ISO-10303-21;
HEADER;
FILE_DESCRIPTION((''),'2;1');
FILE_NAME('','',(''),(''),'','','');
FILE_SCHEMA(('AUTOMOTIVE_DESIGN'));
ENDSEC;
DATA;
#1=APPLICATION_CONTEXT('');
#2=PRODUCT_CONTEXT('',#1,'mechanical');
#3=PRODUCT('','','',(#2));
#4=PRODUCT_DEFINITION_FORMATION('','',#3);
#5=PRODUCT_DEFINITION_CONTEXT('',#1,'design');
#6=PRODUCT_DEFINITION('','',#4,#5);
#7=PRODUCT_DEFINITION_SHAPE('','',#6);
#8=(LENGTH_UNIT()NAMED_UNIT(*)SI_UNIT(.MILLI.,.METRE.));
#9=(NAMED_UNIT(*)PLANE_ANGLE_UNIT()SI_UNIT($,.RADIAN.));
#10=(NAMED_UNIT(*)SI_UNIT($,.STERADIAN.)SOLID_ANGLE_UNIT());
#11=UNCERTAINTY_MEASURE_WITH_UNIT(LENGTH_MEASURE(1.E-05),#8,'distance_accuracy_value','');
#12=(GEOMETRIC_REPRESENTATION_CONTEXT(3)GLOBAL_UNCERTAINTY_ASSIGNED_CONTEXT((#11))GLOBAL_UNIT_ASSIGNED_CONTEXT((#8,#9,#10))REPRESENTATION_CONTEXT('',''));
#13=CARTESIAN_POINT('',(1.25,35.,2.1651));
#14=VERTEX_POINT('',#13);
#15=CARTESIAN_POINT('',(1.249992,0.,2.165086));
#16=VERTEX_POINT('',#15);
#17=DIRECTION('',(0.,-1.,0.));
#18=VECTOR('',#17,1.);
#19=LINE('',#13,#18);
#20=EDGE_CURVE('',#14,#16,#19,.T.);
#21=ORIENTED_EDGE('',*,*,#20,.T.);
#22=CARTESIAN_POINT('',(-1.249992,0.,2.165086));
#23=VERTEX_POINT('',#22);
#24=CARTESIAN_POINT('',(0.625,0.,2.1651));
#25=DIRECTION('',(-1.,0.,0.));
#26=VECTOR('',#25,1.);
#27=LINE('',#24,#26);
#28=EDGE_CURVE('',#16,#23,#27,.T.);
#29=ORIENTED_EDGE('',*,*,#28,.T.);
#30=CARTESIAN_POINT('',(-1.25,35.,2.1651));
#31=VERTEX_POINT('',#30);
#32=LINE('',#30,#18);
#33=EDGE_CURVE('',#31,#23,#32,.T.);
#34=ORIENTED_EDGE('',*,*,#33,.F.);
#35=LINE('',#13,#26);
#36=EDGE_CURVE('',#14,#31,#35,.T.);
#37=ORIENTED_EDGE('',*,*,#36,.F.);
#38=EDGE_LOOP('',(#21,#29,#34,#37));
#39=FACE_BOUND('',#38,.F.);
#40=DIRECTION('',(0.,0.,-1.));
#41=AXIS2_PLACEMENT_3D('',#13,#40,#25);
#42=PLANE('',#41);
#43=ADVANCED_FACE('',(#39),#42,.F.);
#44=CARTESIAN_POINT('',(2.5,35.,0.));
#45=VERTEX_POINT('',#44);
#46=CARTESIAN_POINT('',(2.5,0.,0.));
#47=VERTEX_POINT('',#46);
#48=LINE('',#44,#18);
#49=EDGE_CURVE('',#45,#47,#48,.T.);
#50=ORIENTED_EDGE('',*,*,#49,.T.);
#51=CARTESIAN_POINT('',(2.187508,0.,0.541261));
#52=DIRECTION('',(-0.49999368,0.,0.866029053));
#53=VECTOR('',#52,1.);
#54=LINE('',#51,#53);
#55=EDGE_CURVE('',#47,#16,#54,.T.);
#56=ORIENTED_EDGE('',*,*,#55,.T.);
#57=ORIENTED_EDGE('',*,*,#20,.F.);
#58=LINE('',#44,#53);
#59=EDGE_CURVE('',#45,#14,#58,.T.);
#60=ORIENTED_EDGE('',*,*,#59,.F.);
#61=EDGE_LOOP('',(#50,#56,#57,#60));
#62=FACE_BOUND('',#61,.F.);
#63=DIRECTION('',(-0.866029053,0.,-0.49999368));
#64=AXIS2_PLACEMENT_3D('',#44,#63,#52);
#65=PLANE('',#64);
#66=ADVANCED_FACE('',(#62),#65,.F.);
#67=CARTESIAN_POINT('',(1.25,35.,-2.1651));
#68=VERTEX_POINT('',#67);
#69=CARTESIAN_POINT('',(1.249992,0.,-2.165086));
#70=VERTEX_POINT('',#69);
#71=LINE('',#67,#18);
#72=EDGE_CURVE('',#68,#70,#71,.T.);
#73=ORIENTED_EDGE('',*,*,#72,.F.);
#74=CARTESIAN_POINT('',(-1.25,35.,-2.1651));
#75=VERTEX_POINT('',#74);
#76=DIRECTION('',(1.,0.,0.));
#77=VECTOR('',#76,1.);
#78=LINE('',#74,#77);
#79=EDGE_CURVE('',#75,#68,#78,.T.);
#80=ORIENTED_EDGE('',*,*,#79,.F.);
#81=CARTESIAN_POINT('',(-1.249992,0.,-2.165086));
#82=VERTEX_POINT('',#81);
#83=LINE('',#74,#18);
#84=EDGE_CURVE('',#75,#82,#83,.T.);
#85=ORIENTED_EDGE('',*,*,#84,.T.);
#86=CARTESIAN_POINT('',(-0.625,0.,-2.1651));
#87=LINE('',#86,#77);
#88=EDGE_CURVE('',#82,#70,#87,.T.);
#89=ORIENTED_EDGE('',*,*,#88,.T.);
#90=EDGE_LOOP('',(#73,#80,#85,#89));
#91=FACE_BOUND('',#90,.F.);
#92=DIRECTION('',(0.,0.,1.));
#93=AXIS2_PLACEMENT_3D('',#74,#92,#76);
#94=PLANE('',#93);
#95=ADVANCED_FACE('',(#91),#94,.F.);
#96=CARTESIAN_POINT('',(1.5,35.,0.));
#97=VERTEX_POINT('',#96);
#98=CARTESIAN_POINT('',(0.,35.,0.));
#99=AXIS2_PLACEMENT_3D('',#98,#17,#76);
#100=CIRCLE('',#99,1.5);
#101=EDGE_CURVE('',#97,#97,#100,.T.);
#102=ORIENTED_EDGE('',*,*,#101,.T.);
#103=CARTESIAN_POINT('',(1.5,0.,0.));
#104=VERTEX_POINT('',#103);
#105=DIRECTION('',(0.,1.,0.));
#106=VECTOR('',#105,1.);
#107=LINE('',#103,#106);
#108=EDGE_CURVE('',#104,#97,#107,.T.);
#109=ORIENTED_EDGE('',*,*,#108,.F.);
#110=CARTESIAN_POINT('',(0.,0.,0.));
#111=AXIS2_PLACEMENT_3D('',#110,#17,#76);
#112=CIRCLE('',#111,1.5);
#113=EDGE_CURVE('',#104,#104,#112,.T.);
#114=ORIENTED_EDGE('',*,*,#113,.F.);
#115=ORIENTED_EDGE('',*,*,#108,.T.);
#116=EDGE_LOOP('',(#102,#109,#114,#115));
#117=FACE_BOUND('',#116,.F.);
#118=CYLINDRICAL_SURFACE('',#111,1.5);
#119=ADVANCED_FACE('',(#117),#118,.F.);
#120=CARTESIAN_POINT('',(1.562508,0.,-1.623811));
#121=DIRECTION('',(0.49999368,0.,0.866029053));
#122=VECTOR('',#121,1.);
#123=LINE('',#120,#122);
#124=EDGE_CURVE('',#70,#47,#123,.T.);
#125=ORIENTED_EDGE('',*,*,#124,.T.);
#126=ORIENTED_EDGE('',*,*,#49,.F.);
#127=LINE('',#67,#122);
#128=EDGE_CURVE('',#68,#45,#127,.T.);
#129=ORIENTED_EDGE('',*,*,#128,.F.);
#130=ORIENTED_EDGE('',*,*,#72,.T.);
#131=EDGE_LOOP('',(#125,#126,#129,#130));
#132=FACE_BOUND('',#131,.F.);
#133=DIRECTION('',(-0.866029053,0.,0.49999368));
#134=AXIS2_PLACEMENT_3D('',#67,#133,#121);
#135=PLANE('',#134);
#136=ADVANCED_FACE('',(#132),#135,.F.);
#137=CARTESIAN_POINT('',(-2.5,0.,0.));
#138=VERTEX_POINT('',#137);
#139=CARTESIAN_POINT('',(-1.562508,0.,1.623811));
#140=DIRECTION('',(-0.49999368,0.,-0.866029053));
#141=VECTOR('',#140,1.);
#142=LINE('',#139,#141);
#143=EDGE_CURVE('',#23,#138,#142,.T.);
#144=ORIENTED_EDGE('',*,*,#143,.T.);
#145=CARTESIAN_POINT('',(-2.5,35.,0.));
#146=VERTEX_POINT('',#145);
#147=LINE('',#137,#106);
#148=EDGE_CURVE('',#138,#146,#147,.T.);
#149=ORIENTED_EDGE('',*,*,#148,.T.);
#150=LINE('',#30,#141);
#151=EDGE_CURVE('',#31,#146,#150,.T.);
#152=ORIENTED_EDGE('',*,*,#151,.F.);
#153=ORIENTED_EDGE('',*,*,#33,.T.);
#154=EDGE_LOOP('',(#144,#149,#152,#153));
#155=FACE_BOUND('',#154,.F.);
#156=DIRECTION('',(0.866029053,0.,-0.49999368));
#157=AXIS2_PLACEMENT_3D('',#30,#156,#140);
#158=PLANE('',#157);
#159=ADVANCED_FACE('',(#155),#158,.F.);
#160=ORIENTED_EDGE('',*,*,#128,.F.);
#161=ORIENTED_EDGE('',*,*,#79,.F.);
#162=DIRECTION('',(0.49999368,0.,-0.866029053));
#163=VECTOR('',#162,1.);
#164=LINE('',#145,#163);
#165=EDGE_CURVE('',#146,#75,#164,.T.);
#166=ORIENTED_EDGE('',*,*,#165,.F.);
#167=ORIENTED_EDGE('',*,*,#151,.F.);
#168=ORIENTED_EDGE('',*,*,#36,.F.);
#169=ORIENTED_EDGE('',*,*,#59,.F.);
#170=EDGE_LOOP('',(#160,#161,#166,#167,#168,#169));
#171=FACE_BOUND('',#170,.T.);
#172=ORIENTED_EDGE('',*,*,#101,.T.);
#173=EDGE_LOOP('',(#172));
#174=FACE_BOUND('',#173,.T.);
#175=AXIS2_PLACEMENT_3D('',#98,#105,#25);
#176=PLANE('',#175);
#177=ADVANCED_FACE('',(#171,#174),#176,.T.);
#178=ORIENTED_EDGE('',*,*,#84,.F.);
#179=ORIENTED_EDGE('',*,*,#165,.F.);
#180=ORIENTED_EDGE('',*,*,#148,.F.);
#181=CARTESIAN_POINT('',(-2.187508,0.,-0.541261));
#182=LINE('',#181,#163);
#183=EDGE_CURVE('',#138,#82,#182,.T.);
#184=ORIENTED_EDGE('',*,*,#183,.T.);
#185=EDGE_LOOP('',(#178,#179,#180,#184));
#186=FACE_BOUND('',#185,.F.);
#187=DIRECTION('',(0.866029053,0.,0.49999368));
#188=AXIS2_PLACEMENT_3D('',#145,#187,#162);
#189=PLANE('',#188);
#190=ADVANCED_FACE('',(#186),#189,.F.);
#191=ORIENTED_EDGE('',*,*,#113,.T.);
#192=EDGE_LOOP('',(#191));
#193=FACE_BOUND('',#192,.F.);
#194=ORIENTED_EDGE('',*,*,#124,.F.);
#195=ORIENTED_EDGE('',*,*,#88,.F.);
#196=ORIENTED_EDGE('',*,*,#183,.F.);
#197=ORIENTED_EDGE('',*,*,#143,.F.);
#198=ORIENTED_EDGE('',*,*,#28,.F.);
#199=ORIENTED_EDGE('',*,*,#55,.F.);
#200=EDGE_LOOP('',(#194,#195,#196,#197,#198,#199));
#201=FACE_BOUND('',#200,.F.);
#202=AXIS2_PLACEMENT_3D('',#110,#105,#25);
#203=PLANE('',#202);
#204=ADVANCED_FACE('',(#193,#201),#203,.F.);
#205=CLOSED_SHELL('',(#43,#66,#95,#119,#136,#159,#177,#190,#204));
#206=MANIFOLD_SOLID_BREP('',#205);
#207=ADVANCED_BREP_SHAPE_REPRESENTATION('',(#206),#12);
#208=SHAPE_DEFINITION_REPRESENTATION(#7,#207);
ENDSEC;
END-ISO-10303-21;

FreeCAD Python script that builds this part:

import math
import FreeCAD as App
import Part
import Sketcher

V = App.Vector
Q = App.Units.Quantity

doc = App.newDocument("Part")
body = doc.addObject("PartDesign::Body", "Body")

# Sketch on XZ plane
sketch1 = body.newObject("Sketcher::SketchObject", "Sketch")
sketch1.AttachmentSupport = (doc.getObject("XZ_Plane"), [""])
sketch1.MapMode = "FlatFace"
sketch1.addGeometry(Part.Circle(V(0, 0, 0), V(0, 0, 1), 2.5), False)
sketch1.addConstraint(Sketcher.Constraint("Coincident", 0, 3, -1, 1))
sketch1.addConstraint(Sketcher.Constraint("Diameter", 0, Q("5 mm")))
pad1 = body.newObject("PartDesign::Pad", "Pad")
pad1.Profile = sketch1
pad1.Length = 35
pad1.Reversed = True

# Sketch on XZ plane
sketch2 = body.newObject("Sketcher::SketchObject", "Sketch001")
sketch2.AttachmentSupport = (doc.getObject("XZ_Plane"), [""])
sketch2.MapMode = "FlatFace"
sketch2.AttachmentOffset = App.Placement(V(0, 0, -35), App.Rotation())
sketch2.addGeometry(Part.LineSegment(V(1.2, -2.2, 0), V(2.5, 0, 0)), False)
sketch2.addGeometry(Part.ArcOfCircle(Part.Circle(V(0, 0, 0), V(0, 0, 1), 2.5), math.radians(-60), math.radians(0)), False)
sketch2.addGeometry(Part.ArcOfCircle(Part.Circle(V(0, 0, 0), V(0, 0, 1), 2.5), math.radians(0), math.radians(60)), False)
sketch2.addGeometry(Part.LineSegment(V(2.5, 0, 0), V(1.2, 2.2, 0)), False)
sketch2.addGeometry(Part.LineSegment(V(-1.2, -2.2, 0), V(1.2, -2.2, 0)), False)
sketch2.addGeometry(Part.ArcOfCircle(Part.Circle(V(0, 0, 0), V(0, 0, 1), 2.5), math.radians(-120), math.radians(-60)), False)
sketch2.addGeometry(Part.ArcOfCircle(Part.Circle(V(0, 0, 0), V(0, 0, 1), 2.5), math.radians(60), math.radians(120)), False)
sketch2.addGeometry(Part.LineSegment(V(-1.2, 2.2, 0), V(1.2, 2.2, 0)), False)
sketch2.addGeometry(Part.LineSegment(V(-2.5, 0, 0), V(-1.2, -2.2, 0)), False)
sketch2.addGeometry(Part.ArcOfCircle(Part.Circle(V(0, 0, 0), V(0, 0, 1), 2.5), math.radians(180), math.radians(240)), False)
sketch2.addGeometry(Part.ArcOfCircle(Part.Circle(V(0, 0, 0), V(0, 0, 1), 2.5), math.radians(120), math.radians(180)), False)
sketch2.addGeometry(Part.LineSegment(V(-2.5, 0, 0), V(-1.2, 2.2, 0)), False)
sketch2.addConstraint(Sketcher.Constraint("Coincident", 0, 1, 1, 1))
sketch2.addConstraint(Sketcher.Constraint("Coincident", 1, 2, 0, 2))
sketch2.addConstraint(Sketcher.Constraint("Coincident", 2, 1, 3, 1))
sketch2.addConstraint(Sketcher.Constraint("Coincident", 3, 2, 2, 2))
sketch2.addConstraint(Sketcher.Constraint("Coincident", 4, 1, 5, 1))
sketch2.addConstraint(Sketcher.Constraint("Coincident", 5, 2, 4, 2))
sketch2.addConstraint(Sketcher.Constraint("Coincident", 6, 1, 7, 2))
sketch2.addConstraint(Sketcher.Constraint("Coincident", 7, 1, 6, 2))
sketch2.addConstraint(Sketcher.Constraint("Coincident", 8, 1, 9, 1))
sketch2.addConstraint(Sketcher.Constraint("Coincident", 9, 2, 8, 2))
sketch2.addConstraint(Sketcher.Constraint("Coincident", 10, 1, 11, 2))
sketch2.addConstraint(Sketcher.Constraint("Coincident", 11, 1, 10, 2))
sketch2.addConstraint(Sketcher.Constraint("Horizontal", 4))
sketch2.addConstraint(Sketcher.Constraint("Horizontal", 7))
sketch2.addConstraint(Sketcher.Constraint("Coincident", 1, 3, -1, 1))
sketch2.addConstraint(Sketcher.Constraint("Coincident", 2, 3, -1, 1))
sketch2.addConstraint(Sketcher.Constraint("Coincident", 5, 3, -1, 1))
sketch2.addConstraint(Sketcher.Constraint("Coincident", 6, 3, -1, 1))
sketch2.addConstraint(Sketcher.Constraint("Coincident", 9, 3, -1, 1))
sketch2.addConstraint(Sketcher.Constraint("Coincident", 10, 3, -1, 1))
sketch2.addConstraint(Sketcher.Constraint("Coincident", 2, 1, 1, 2))
sketch2.addConstraint(Sketcher.Constraint("Coincident", 5, 2, 0, 1))
sketch2.addConstraint(Sketcher.Constraint("Coincident", 6, 1, 3, 2))
sketch2.addConstraint(Sketcher.Constraint("Coincident", 9, 2, 4, 1))
sketch2.addConstraint(Sketcher.Constraint("Coincident", 10, 1, 7, 1))
sketch2.addConstraint(Sketcher.Constraint("PointOnObject", 1, 2, -1))
sketch2.addConstraint(Sketcher.Constraint("PointOnObject", 8, 1, -1))
sketch2.addConstraint(Sketcher.Constraint("PointOnObject", 11, 1, -1))
sketch2.addConstraint(Sketcher.Constraint("Parallel", 3, 8))
sketch2.addConstraint(Sketcher.Constraint("Radius", 1, Q("2.5 mm")))
sketch2.addConstraint(Sketcher.Constraint("Angle", 0, Q("60.0004 deg")))
pocket1 = body.newObject("PartDesign::Pocket", "Pocket")
pocket1.Profile = sketch2
pocket1.Type = "ThroughAll"
pocket1.Reversed = True

# Sketch on XZ plane
sketch3 = body.newObject("Sketcher::SketchObject", "Sketch002")
sketch3.AttachmentSupport = (doc.getObject("XZ_Plane"), [""])
sketch3.MapMode = "FlatFace"
sketch3.addGeometry(Part.Circle(V(0, 0, 0), V(0, 0, 1), 1.5), False)
sketch3.addConstraint(Sketcher.Constraint("Coincident", 0, 3, -1, 1))
sketch3.addConstraint(Sketcher.Constraint("Diameter", 0, Q("3 mm")))
pocket2 = body.newObject("PartDesign::Pocket", "Pocket001")
pocket2.Profile = sketch3
pocket2.Type = "ThroughAll"

doc.recompute()
